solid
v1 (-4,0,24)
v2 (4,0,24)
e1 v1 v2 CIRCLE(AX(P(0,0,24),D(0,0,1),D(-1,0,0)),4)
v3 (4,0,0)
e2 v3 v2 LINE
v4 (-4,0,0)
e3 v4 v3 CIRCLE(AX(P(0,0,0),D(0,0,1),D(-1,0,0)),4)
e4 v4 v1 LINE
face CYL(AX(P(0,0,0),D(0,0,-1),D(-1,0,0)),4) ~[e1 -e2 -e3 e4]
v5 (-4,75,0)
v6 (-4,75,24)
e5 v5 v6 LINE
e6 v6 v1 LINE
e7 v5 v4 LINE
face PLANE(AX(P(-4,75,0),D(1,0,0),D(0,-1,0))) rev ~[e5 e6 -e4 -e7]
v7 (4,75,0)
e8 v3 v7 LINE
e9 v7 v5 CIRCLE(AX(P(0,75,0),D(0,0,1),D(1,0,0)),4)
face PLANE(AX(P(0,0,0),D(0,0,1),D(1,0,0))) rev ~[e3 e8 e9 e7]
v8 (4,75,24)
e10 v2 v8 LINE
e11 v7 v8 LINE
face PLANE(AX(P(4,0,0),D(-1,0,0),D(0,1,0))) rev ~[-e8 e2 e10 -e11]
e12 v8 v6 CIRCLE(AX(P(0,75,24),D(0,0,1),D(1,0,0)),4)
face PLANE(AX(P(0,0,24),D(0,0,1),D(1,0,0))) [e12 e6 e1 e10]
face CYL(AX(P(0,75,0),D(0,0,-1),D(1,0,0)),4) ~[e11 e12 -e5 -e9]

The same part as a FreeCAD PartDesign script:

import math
import FreeCAD as App
import Part
import Sketcher

doc = App.newDocument("Part")
body = doc.addObject("PartDesign::Body", "Body")

# Sketch on XY plane
sketch1 = body.newObject("Sketcher::SketchObject", "Sketch")
sketch1.AttachmentSupport = (doc.getObject("XY_Plane"), [""])
sketch1.MapMode = "FlatFace"
sketch1.addGeometry(Part.ArcOfCircle(Part.Circle(App.Vector(0, 0, 0), App.Vector(0, 0, 1), 4), math.radians(180), math.radians(360)), False)
sketch1.addGeometry(Part.LineSegment(App.Vector(4, 0, 0), App.Vector(4, 75, 0)), False)
sketch1.addGeometry(Part.ArcOfCircle(Part.Circle(App.Vector(0, 75, 0), App.Vector(0, 0, 1), 4), math.radians(0), math.radians(180)), False)
sketch1.addGeometry(Part.LineSegment(App.Vector(-4, 75, 0), App.Vector(-4, 0, 0)), False)
sketch1.addConstraint(Sketcher.Constraint("Tangent", 0, 2, 1, 1))
sketch1.addConstraint(Sketcher.Constraint("Tangent", 1, 2, 2, 1))
sketch1.addConstraint(Sketcher.Constraint("Tangent", 2, 2, 3, 1))
sketch1.addConstraint(Sketcher.Constraint("Tangent", 3, 2, 0, 1))
sketch1.addConstraint(Sketcher.Constraint("Vertical", 1))
sketch1.addConstraint(Sketcher.Constraint("Vertical", 3))
sketch1.addConstraint(Sketcher.Constraint("Coincident", 0, 3, -1, 1))
sketch1.addConstraint(Sketcher.Constraint("Radius", 0, 4.0))
sketch1.addConstraint(Sketcher.Constraint("DistanceY", 1, 1, 1, 2, 75.0))
pad1 = body.newObject("PartDesign::Pad", "Pad")
pad1.Profile = sketch1
pad1.Length = 24

doc.recompute()
